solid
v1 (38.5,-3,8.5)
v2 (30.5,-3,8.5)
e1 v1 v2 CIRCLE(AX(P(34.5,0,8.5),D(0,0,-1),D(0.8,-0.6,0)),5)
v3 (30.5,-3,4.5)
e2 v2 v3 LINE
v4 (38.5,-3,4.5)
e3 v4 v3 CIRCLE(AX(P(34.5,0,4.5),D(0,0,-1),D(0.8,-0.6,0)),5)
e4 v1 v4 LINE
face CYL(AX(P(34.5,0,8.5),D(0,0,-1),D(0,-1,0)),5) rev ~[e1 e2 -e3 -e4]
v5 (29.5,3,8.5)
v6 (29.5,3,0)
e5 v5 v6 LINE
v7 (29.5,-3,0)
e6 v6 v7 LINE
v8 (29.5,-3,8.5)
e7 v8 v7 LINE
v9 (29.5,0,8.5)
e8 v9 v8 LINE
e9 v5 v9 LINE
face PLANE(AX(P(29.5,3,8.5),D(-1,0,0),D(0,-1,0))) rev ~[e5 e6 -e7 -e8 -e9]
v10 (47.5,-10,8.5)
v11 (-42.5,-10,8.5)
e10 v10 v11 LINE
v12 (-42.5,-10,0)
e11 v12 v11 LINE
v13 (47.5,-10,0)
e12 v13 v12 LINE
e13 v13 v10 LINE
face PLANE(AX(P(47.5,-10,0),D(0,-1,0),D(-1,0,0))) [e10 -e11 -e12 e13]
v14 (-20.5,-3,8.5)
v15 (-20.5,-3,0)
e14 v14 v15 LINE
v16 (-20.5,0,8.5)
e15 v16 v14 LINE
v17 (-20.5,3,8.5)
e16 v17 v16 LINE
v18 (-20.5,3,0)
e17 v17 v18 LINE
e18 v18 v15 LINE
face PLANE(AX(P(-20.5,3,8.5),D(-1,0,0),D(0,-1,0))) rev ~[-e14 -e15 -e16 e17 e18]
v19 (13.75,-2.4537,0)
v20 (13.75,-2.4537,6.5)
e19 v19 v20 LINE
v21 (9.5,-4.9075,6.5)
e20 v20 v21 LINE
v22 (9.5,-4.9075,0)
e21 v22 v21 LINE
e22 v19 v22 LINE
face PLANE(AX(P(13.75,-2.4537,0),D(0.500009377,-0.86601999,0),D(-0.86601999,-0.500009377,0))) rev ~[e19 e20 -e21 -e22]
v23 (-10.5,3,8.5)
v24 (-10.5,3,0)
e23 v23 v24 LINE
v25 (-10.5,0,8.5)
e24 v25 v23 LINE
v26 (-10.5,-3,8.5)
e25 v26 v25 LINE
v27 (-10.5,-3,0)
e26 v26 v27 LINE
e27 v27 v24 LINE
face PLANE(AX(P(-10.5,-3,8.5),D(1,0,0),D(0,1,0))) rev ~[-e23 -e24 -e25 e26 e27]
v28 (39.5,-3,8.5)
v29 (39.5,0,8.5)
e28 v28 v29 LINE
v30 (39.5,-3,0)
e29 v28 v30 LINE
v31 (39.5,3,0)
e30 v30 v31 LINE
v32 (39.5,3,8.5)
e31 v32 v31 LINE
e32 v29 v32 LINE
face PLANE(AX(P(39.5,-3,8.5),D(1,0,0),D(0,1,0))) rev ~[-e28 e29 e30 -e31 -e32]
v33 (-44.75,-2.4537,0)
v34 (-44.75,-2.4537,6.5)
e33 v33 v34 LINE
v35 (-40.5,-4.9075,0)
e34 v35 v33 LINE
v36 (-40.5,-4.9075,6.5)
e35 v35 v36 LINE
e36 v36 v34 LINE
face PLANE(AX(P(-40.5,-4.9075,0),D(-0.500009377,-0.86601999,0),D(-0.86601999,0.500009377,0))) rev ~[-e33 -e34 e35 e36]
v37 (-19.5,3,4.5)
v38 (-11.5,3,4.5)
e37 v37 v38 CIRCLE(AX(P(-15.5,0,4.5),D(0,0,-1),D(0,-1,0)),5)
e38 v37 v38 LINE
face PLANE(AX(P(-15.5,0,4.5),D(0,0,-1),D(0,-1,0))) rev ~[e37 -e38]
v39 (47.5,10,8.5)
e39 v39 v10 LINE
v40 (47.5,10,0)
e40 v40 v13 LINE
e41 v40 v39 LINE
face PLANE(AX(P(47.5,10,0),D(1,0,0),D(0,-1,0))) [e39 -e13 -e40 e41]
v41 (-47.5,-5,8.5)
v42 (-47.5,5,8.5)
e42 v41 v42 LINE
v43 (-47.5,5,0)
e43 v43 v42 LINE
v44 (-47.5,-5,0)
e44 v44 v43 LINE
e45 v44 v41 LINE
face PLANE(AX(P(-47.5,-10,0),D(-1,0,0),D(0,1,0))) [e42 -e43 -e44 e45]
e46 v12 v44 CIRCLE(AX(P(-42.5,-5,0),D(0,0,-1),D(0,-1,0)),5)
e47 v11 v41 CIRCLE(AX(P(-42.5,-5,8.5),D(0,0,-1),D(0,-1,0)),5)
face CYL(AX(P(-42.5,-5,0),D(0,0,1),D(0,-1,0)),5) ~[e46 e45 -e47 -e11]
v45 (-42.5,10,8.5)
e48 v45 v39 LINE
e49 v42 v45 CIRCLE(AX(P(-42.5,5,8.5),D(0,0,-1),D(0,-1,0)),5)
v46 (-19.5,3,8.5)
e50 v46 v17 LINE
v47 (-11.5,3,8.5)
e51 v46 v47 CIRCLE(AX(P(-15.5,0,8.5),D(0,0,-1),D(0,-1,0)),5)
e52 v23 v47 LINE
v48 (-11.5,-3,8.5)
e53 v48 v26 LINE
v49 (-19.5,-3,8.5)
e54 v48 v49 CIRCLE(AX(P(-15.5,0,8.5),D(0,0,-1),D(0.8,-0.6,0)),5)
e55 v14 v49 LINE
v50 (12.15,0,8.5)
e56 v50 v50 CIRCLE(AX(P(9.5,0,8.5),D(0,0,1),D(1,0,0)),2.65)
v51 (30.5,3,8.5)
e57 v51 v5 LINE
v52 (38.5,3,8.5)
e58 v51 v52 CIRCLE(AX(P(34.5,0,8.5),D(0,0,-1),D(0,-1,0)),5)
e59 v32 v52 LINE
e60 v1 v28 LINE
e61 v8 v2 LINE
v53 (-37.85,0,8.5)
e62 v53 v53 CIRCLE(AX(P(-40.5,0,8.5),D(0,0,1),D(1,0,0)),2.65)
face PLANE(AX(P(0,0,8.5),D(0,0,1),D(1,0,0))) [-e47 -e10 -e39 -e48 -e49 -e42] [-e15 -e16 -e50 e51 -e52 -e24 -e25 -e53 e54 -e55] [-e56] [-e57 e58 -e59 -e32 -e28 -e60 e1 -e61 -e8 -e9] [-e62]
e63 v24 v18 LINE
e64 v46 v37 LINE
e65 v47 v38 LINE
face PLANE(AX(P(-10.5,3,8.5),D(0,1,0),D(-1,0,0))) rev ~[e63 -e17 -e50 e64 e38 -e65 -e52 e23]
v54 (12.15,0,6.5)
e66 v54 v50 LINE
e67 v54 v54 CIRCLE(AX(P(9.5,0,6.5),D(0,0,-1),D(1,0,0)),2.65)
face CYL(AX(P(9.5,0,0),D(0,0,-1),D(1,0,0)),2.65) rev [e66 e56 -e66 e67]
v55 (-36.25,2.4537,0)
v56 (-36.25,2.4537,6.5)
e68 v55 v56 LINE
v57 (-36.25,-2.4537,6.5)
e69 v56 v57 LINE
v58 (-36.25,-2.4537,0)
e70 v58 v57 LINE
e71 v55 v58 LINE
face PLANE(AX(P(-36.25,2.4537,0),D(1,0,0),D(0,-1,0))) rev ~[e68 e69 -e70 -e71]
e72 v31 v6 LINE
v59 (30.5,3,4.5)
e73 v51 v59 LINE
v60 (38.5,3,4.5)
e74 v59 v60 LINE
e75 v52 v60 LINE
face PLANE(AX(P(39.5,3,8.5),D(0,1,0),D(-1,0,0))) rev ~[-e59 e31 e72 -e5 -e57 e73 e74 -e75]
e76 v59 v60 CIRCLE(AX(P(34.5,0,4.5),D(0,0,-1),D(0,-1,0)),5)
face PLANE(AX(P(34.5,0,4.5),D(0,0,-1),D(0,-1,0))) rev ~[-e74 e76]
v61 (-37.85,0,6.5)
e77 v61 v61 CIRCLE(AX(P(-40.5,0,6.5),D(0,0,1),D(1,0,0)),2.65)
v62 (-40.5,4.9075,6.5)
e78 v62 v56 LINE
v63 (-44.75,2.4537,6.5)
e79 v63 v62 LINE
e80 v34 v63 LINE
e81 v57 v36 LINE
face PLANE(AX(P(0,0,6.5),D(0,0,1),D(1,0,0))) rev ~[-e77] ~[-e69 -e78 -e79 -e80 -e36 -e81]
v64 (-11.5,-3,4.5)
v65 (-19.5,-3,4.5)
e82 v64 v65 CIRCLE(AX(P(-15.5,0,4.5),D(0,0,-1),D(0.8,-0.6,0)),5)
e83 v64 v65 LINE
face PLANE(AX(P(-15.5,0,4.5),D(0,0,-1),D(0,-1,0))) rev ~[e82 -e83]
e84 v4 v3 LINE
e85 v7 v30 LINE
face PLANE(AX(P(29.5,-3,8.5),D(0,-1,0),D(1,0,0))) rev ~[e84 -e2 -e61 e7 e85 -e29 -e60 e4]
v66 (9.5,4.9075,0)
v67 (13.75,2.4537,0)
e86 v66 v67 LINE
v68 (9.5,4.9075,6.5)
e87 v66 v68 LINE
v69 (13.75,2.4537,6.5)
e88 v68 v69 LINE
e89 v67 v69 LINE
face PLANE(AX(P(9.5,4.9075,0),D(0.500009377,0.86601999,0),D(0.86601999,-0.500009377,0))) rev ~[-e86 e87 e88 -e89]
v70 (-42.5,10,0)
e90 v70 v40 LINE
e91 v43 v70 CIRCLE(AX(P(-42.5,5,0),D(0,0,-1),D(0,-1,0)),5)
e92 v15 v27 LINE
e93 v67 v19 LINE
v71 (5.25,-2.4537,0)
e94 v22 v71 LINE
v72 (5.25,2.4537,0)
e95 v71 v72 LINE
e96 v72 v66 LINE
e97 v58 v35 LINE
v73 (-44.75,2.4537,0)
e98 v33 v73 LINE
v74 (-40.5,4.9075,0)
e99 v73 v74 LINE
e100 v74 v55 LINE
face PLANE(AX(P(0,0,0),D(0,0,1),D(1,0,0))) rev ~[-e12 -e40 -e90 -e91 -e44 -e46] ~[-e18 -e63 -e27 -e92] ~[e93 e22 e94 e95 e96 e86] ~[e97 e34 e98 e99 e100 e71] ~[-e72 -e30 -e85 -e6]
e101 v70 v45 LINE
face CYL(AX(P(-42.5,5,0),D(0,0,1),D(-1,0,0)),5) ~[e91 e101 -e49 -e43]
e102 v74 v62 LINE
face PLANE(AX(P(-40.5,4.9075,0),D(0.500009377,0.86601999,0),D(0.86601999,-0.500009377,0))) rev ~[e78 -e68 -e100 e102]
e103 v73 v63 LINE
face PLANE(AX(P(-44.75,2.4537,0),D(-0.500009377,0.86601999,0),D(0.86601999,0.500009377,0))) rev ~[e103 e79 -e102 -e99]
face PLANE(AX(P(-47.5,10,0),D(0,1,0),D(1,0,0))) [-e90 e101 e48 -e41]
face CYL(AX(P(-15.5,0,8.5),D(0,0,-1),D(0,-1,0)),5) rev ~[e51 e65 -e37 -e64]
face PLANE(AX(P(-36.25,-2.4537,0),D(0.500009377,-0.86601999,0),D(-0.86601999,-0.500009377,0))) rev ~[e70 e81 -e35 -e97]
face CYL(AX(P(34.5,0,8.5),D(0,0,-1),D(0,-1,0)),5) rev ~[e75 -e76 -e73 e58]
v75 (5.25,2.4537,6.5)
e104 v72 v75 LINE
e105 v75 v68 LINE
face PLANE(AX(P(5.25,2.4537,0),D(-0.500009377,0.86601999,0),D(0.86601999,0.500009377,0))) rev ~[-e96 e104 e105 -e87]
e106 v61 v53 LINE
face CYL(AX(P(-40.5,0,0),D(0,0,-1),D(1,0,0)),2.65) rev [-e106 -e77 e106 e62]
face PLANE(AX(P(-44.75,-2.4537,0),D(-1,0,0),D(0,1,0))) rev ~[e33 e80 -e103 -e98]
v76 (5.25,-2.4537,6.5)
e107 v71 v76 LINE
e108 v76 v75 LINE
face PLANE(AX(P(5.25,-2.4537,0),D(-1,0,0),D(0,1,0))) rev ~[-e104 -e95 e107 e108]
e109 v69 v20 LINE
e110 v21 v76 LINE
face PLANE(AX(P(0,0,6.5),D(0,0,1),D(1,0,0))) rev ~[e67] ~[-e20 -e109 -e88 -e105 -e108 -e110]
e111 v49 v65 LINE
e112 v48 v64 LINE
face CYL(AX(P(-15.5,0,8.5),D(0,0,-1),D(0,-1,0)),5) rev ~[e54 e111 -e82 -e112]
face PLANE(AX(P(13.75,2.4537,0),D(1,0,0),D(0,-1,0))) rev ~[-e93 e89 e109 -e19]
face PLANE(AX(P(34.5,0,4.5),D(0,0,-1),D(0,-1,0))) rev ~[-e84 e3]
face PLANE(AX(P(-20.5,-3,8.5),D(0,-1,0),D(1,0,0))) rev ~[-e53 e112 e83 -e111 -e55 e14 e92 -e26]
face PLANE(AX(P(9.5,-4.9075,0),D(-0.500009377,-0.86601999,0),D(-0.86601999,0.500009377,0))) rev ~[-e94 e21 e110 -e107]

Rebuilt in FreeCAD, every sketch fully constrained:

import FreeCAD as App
import Part
import Sketcher
from FreeCAD import Vector
Q = App.Units.Quantity


def edges_at(feature, points):
    """Names of the edges that pass closest to the given points."""
    edges = feature.Shape.Edges
    near = lambda p: min(range(len(edges)), key=lambda i: edges[i].distToShape(Part.Vertex(*p))[0])
    return sorted({f"Edge{near(p) + 1}" for p in points})

doc = App.newDocument("Part")
body = doc.addObject("PartDesign::Body", "Body")

# Sketch on XY plane
sketch1 = body.newObject("Sketcher::SketchObject", "Sketch")
sketch1.AttachmentSupport = (doc.getObject("XY_Plane"), [""])
sketch1.MapMode = "FlatFace"
sketch1.addGeometry(Part.LineSegment(Vector(-47.5, -10, 0), Vector(47.5, -10, 0)), False)
sketch1.addGeometry(Part.LineSegment(Vector(47.5, -10, 0), Vector(47.5, 10, 0)), False)
sketch1.addGeometry(Part.LineSegment(Vector(47.5, 10, 0), Vector(-47.5, 10, 0)), False)
sketch1.addGeometry(Part.LineSegment(Vector(-47.5, 10, 0), Vector(-47.5, -10, 0)), False)
sketch1.addGeometry(Part.Circle(Vector(-40.5, 0, 0), Vector(0, 0, 1), 2.6), False)
sketch1.addGeometry(Part.Circle(Vector(9.5, 0, 0), Vector(0, 0, 1), 2.6), False)
sketch1.addConstraint(Sketcher.Constraint("Coincident", 0, 2, 1, 1))
sketch1.addConstraint(Sketcher.Constraint("Coincident", 1, 2, 2, 1))
sketch1.addConstraint(Sketcher.Constraint("Coincident", 2, 2, 3, 1))
sketch1.addConstraint(Sketcher.Constraint("Coincident", 3, 2, 0, 1))
sketch1.addConstraint(Sketcher.Constraint("Horizontal", 0))
sketch1.addConstraint(Sketcher.Constraint("Vertical", 1))
sketch1.addConstraint(Sketcher.Constraint("Horizontal", 2))
sketch1.addConstraint(Sketcher.Constraint("Vertical", 3))
sketch1.addConstraint(Sketcher.Constraint("Equal", 4, 5))
sketch1.addConstraint(Sketcher.Constraint("Symmetric", 0, 2, 2, 2, -1, 1))
sketch1.addConstraint(Sketcher.Constraint("PointOnObject", 4, 3, -1))
sketch1.addConstraint(Sketcher.Constraint("PointOnObject", 5, 3, -1))
sketch1.addConstraint(Sketcher.Constraint("Diameter", 4, Q("5.3 mm")))
sketch1.addConstraint(Sketcher.Constraint("DistanceY", 1, 1, 1, 2, Q("20 mm")))
sketch1.addConstraint(Sketcher.Constraint("DistanceX", 4, 3, 5, 3, Q("50 mm")))
sketch1.addConstraint(Sketcher.Constraint("DistanceX", 5, 3, 0, 2, Q("38 mm")))
sketch1.addConstraint(Sketcher.Constraint("DistanceX", 2, 2, 4, 3, Q("7 mm")))
pad1 = body.newObject("PartDesign::Pad", "Pad")
pad1.Profile = sketch1
pad1.Length = 8.5

# Sketch on XY plane
sketch2 = body.newObject("Sketcher::SketchObject", "Sketch001")
sketch2.AttachmentSupport = (doc.getObject("XY_Plane"), [""])
sketch2.MapMode = "FlatFace"
sketch2.addGeometry(Part.LineSegment(Vector(5.2, 2.5, 0), Vector(5.2, -2.5, 0)), False)
sketch2.addGeometry(Part.LineSegment(Vector(5.2, -2.5, 0), Vector(9.5, -4.9, 0)), False)
sketch2.addGeometry(Part.LineSegment(Vector(9.5, -4.9, 0), Vector(13.8, -2.5, 0)), False)
sketch2.addGeometry(Part.LineSegment(Vector(13.8, -2.5, 0), Vector(13.8, 2.5, 0)), False)
sketch2.addGeometry(Part.LineSegment(Vector(13.8, 2.5, 0), Vector(9.5, 4.9, 0)), False)
sketch2.addGeometry(Part.LineSegment(Vector(9.5, 4.9, 0), Vector(5.2, 2.5, 0)), False)
sketch2.addGeometry(Part.LineSegment(Vector(-44.8, 2.5, 0), Vector(-44.8, -2.5, 0)), False)
sketch2.addGeometry(Part.LineSegment(Vector(-44.8, -2.5, 0), Vector(-40.5, -4.9, 0)), False)
sketch2.addGeometry(Part.LineSegment(Vector(-40.5, -4.9, 0), Vector(-36.2, -2.5, 0)), False)
sketch2.addGeometry(Part.LineSegment(Vector(-36.2, -2.5, 0), Vector(-36.2, 2.5, 0)), False)
sketch2.addGeometry(Part.LineSegment(Vector(-36.2, 2.5, 0), Vector(-40.5, 4.9, 0)), False)
sketch2.addGeometry(Part.LineSegment(Vector(-40.5, 4.9, 0), Vector(-44.8, 2.5, 0)), False)
sketch2.addGeometry(Part.Circle(Vector(-40.5, 0, 0), Vector(0, 0, 1), 2.6), False)
sketch2.addConstraint(Sketcher.Constraint("Coincident", 0, 2, 1, 1))
sketch2.addConstraint(Sketcher.Constraint("Coincident", 1, 2, 2, 1))
sketch2.addConstraint(Sketcher.Constraint("Coincident", 2, 2, 3, 1))
sketch2.addConstraint(Sketcher.Constraint("Coincident", 3, 2, 4, 1))
sketch2.addConstraint(Sketcher.Constraint("Coincident", 4, 2, 5, 1))
sketch2.addConstraint(Sketcher.Constraint("Coincident", 5, 2, 0, 1))
sketch2.addConstraint(Sketcher.Constraint("Coincident", 6, 2, 7, 1))
sketch2.addConstraint(Sketcher.Constraint("Coincident", 7, 2, 8, 1))
sketch2.addConstraint(Sketcher.Constraint("Coincident", 8, 2, 9, 1))
sketch2.addConstraint(Sketcher.Constraint("Coincident", 9, 2, 10, 1))
sketch2.addConstraint(Sketcher.Constraint("Coincident", 10, 2, 11, 1))
sketch2.addConstraint(Sketcher.Constraint("Coincident", 11, 2, 6, 1))
sketch2.addConstraint(Sketcher.Constraint("Vertical", 0))
sketch2.addConstraint(Sketcher.Constraint("Vertical", 3))
sketch2.addConstraint(Sketcher.Constraint("Vertical", 6))
sketch2.addConstraint(Sketcher.Constraint("Vertical", 9))
sketch2.addConstraint(Sketcher.Constraint("Symmetric", 1, 2, 4, 2, -1))
sketch2.addConstraint(Sketcher.Constraint("Symmetric", 7, 2, 10, 2, -1))
sketch2.addConstraint(Sketcher.Constraint("PointOnObject", 12, 3, -1))
sketch2.addConstraint(Sketcher.Constraint("Parallel", 1, 4))
sketch2.addConstraint(Sketcher.Constraint("Parallel", 2, 5))
sketch2.addConstraint(Sketcher.Constraint("Parallel", 4, 7))
sketch2.addConstraint(Sketcher.Constraint("Parallel", 5, 8))
sketch2.addConstraint(Sketcher.Constraint("Parallel", 7, 10))
sketch2.addConstraint(Sketcher.Constraint("Parallel", 8, 11))
sketch2.addConstraint(Sketcher.Constraint("Horizontal", 0, 2, 2, 2))
sketch2.addConstraint(Sketcher.Constraint("Horizontal", 3, 2, 5, 2))
sketch2.addConstraint(Sketcher.Constraint("Horizontal", 2, 2, 6, 2))
sketch2.addConstraint(Sketcher.Constraint("Horizontal", 1, 2, 7, 2))
sketch2.addConstraint(Sketcher.Constraint("Horizontal", 6, 2, 8, 2))
sketch2.addConstraint(Sketcher.Constraint("Vertical", 12, 3, 7, 2))
sketch2.addConstraint(Sketcher.Constraint("Diameter", 12, Q("5.3 mm")))
sketch2.addConstraint(Sketcher.Constraint("DistanceX", 12, 3, 1, 2, Q("50 mm")))
sketch2.addConstraint(Sketcher.Constraint("DistanceX", 0, 2, 2, 2, Q("8.5 mm")))
sketch2.addConstraint(Sketcher.Constraint("Angle", 1, Q("-30.0006 deg")))
sketch2.addConstraint(Sketcher.Constraint("DistanceX", 12, 3, -1, 1, Q("40.5 mm")))
sketch2.addConstraint(Sketcher.Constraint("DistanceY", 0, 2, 0, 1, Q("4.9074 mm")))
pocket1 = body.newObject("PartDesign::Pocket", "Pocket")
pocket1.Profile = sketch2
pocket1.Length = 6.5
pocket1.Reversed = True

# Sketch on XY plane
sketch3 = body.newObject("Sketcher::SketchObject", "Sketch002")
sketch3.AttachmentSupport = (doc.getObject("XY_Plane"), [""])
sketch3.MapMode = "FlatFace"
sketch3.AttachmentOffset = App.Placement(Vector(0, 0, 8.5), App.Rotation())
sketch3.addGeometry(Part.Circle(Vector(-15.5, 0, 0), Vector(0, 0, 1), 2.6), False)
sketch3.addGeometry(Part.Circle(Vector(34.5, 0, 0), Vector(0, 0, 1), 2.6), False)
sketch3.addConstraint(Sketcher.Constraint("Equal", 0, 1))
sketch3.addConstraint(Sketcher.Constraint("PointOnObject", 0, 3, -1))
sketch3.addConstraint(Sketcher.Constraint("PointOnObject", 1, 3, -1))
sketch3.addConstraint(Sketcher.Constraint("Diameter", 0, Q("5.3 mm")))
sketch3.addConstraint(Sketcher.Constraint("DistanceX", 0, 3, 1, 3, Q("50 mm")))
sketch3.addConstraint(Sketcher.Constraint("DistanceX", 0, 3, -1, 1, Q("15.5 mm")))
doc.recompute()
hole = body.newObject("PartDesign::Hole", "Hole")
hole.Profile = sketch3
hole.ThreadType = "None"
hole.Diameter = 5.3
hole.DepthType = "ThroughAll"
hole.HoleCutType = "Counterbore"
hole.HoleCutDiameter = 10
hole.HoleCutDepth = 4
doc.recompute()

fillet = body.newObject("PartDesign::Fillet", "Fillet")
fillet.Base = (hole, edges_at(hole, [(-47.5, -10, 4.25), (-47.5, 10, 4.25)]))
fillet.Radius = 5

# Sketch on XY plane
sketch4 = body.newObject("Sketcher::SketchObject", "Sketch003")
sketch4.AttachmentSupport = (doc.getObject("XY_Plane"), [""])
sketch4.MapMode = "FlatFace"
sketch4.AttachmentOffset = App.Placement(Vector(0, 0, 8.5), App.Rotation())
sketch4.addGeometry(Part.LineSegment(Vector(39.5, -3, 0), Vector(39.5, 3, 0)), False)
sketch4.addGeometry(Part.LineSegment(Vector(39.5, 3, 0), Vector(29.5, 3, 0)), False)
sketch4.addGeometry(Part.LineSegment(Vector(29.5, 3, 0), Vector(29.5, -3, 0)), False)
sketch4.addGeometry(Part.LineSegment(Vector(29.5, -3, 0), Vector(39.5, -3, 0)), False)
sketch4.addGeometry(Part.Circle(Vector(34.5, 0, 0), Vector(0, 0, 1), 2.6), False)
sketch4.addGeometry(Part.LineSegment(Vector(-10.5, -3, 0), Vector(-10.5, 3, 0)), False)
sketch4.addGeometry(Part.LineSegment(Vector(-10.5, 3, 0), Vector(-20.5, 3, 0)), False)
sketch4.addGeometry(Part.LineSegment(Vector(-20.5, 3, 0), Vector(-20.5, -3, 0)), False)
sketch4.addGeometry(Part.LineSegment(Vector(-20.5, -3, 0), Vector(-10.5, -3, 0)), False)
sketch4.addGeometry(Part.Circle(Vector(-15.5, 0, 0), Vector(0, 0, 1), 2.6), False)
sketch4.addConstraint(Sketcher.Constraint("Coincident", 0, 2, 1, 1))
sketch4.addConstraint(Sketcher.Constraint("Coincident", 1, 2, 2, 1))
sketch4.addConstraint(Sketcher.Constraint("Coincident", 2, 2, 3, 1))
sketch4.addConstraint(Sketcher.Constraint("Coincident", 3, 2, 0, 1))
sketch4.addConstraint(Sketcher.Constraint("Coincident", 5, 2, 6, 1))
sketch4.addConstraint(Sketcher.Constraint("Coincident", 6, 2, 7, 1))
sketch4.addConstraint(Sketcher.Constraint("Coincident", 7, 2, 8, 1))
sketch4.addConstraint(Sketcher.Constraint("Coincident", 8, 2, 5, 1))
sketch4.addConstraint(Sketcher.Constraint("Vertical", 0))
sketch4.addConstraint(Sketcher.Constraint("Horizontal", 1))
sketch4.addConstraint(Sketcher.Constraint("Vertical", 2))
sketch4.addConstraint(Sketcher.Constraint("Horizontal", 3))
sketch4.addConstraint(Sketcher.Constraint("Vertical", 5))
sketch4.addConstraint(Sketcher.Constraint("Horizontal", 6))
sketch4.addConstraint(Sketcher.Constraint("Vertical", 7))
sketch4.addConstraint(Sketcher.Constraint("Horizontal", 8))
sketch4.addConstraint(Sketcher.Constraint("Equal", 4, 9))
sketch4.addConstraint(Sketcher.Constraint("PointOnObject", 4, 3, -1))
sketch4.addConstraint(Sketcher.Constraint("PointOnObject", 9, 3, -1))
sketch4.addConstraint(Sketcher.Constraint("Horizontal", 1, 2, 5, 2))
sketch4.addConstraint(Sketcher.Constraint("Horizontal", 3, 2, 7, 2))
sketch4.addConstraint(Sketcher.Constraint("Equal", 3, 6))
sketch4.addConstraint(Sketcher.Constraint("DistanceX", 1, 2, 1, 1, Q("10 mm")))
sketch4.addConstraint(Sketcher.Constraint("DistanceY", 0, 1, 0, 2, Q("6 mm")))
sketch4.addConstraint(Sketcher.Constraint("Diameter", 4, Q("5.3 mm")))
sketch4.addConstraint(Sketcher.Constraint("DistanceY", -1, 1, 0, 2, Q("3 mm")))
sketch4.addConstraint(Sketcher.Constraint("DistanceX", 9, 3, 4, 3, Q("50 mm")))
sketch4.addConstraint(Sketcher.Constraint("DistanceX", 4, 3, 0, 2, Q("5 mm")))
sketch4.addConstraint(Sketcher.Constraint("DistanceX", 9, 3, 5, 2, Q("5 mm")))
sketch4.addConstraint(Sketcher.Constraint("DistanceX", -1, 1, 4, 3, Q("34.5 mm")))
pocket2 = body.newObject("PartDesign::Pocket", "Pocket001")
pocket2.Profile = sketch4
pocket2.Type = "ThroughAll"

doc.recompute()
